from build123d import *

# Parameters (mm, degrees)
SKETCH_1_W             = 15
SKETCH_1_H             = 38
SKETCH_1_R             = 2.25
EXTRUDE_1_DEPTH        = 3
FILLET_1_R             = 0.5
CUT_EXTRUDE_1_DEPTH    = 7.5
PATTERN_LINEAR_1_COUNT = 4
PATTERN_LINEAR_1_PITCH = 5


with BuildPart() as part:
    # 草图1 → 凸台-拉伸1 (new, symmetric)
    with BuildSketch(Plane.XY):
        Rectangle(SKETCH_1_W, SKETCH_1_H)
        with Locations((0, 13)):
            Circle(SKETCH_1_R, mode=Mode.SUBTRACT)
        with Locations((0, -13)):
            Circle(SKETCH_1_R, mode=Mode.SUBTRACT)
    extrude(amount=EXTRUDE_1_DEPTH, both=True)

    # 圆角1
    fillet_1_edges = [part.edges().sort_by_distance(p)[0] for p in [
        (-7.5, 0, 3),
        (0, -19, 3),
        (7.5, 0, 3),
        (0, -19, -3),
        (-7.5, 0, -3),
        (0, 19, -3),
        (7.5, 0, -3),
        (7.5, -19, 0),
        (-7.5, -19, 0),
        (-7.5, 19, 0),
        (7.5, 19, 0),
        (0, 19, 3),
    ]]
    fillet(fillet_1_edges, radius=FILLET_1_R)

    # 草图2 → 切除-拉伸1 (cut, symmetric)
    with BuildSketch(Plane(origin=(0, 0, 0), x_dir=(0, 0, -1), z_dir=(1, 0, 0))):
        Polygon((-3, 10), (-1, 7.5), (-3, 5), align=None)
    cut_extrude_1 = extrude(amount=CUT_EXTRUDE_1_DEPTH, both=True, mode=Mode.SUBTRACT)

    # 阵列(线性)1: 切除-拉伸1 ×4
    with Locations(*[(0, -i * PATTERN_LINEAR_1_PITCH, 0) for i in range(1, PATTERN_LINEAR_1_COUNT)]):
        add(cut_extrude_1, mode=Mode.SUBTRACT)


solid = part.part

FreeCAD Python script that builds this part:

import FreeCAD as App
import Part
import Sketcher


def edges_at(feature, points):
    """Names of the edges that pass closest to the given points."""
    edges = feature.Shape.Edges
    near = lambda p: min(range(len(edges)), key=lambda i: edges[i].distToShape(Part.Vertex(*p))[0])
    return sorted({f"Edge{near(p) + 1}" for p in points})

doc = App.newDocument("Part")
body = doc.addObject("PartDesign::Body", "Body")

# Sketch on XY plane
sketch1 = body.newObject("Sketcher::SketchObject", "Sketch")
sketch1.AttachmentSupport = (doc.getObject("XY_Plane"), [""])
sketch1.MapMode = "FlatFace"
sketch1.addGeometry(Part.LineSegment(App.Vector(-7.5, 19, 0), App.Vector(-7.5, -19, 0)), False)
sketch1.addGeometry(Part.LineSegment(App.Vector(-7.5, -19, 0), App.Vector(7.5, -19, 0)), False)
sketch1.addGeometry(Part.LineSegment(App.Vector(7.5, -19, 0), App.Vector(7.5, 19, 0)), False)
sketch1.addGeometry(Part.LineSegment(App.Vector(7.5, 19, 0), App.Vector(-7.5, 19, 0)), False)
sketch1.addGeometry(Part.Circle(App.Vector(0, -13, 0), App.Vector(0, 0, 1), 2.2), False)
sketch1.addGeometry(Part.Circle(App.Vector(0, 13, 0), App.Vector(0, 0, 1), 2.2), False)
sketch1.addConstraint(Sketcher.Constraint("Coincident", 0, 2, 1, 1))
sketch1.addConstraint(Sketcher.Constraint("Coincident", 1, 2, 2, 1))
sketch1.addConstraint(Sketcher.Constraint("Coincident", 2, 2, 3, 1))
sketch1.addConstraint(Sketcher.Constraint("Coincident", 3, 2, 0, 1))
sketch1.addConstraint(Sketcher.Constraint("Vertical", 0))
sketch1.addConstraint(Sketcher.Constraint("Horizontal", 1))
sketch1.addConstraint(Sketcher.Constraint("Vertical", 2))
sketch1.addConstraint(Sketcher.Constraint("Horizontal", 3))
sketch1.addConstraint(Sketcher.Constraint("Equal", 4, 5))
sketch1.addConstraint(Sketcher.Constraint("Symmetric", 4, 3, 5, 3, -1, 1))
sketch1.addConstraint(Sketcher.Constraint("Symmetric", 0, 2, 2, 2, -1, 1))
sketch1.addConstraint(Sketcher.Constraint("PointOnObject", 4, 3, -2))
sketch1.addConstraint(Sketcher.Constraint("Diameter", 4, 4.5))
sketch1.addConstraint(Sketcher.Constraint("DistanceX", 1, 1, 1, 2, 15.0))
sketch1.addConstraint(Sketcher.Constraint("DistanceY", 0, 2, 0, 1, 38.0))
sketch1.addConstraint(Sketcher.Constraint("DistanceY", 4, 3, -1, 1, 13.0))
pad1 = body.newObject("PartDesign::Pad", "Pad")
pad1.Profile = sketch1
pad1.Length = 6
pad1.Midplane = True
doc.recompute()

fillet = body.newObject("PartDesign::Fillet", "Fillet")
fillet.Base = (pad1, edges_at(pad1, [
    (-7.5, 0, 3),
    (0, -19, 3),
    (7.5, 0, 3),
    (0, -19, -3),
    (-7.5, 0, -3),
    (0, 19, -3),
    (7.5, 0, -3),
    (7.5, -19, 0),
    (-7.5, -19, 0),
    (-7.5, 19, 0),
    (7.5, 19, 0),
    (0, 19, 3),
]))
fillet.Radius = 0.5

# Sketch on YZ plane
sketch2 = body.newObject("Sketcher::SketchObject", "Sketch001")
sketch2.AttachmentSupport = (doc.getObject("YZ_Plane"), [""])
sketch2.MapMode = "FlatFace"
sketch2.addGeometry(Part.LineSegment(App.Vector(7.5, 1, 0), App.Vector(10, 3, 0)), False)
sketch2.addGeometry(Part.LineSegment(App.Vector(10, 3, 0), App.Vector(5, 3, 0)), False)
sketch2.addGeometry(Part.LineSegment(App.Vector(5, 3, 0), App.Vector(7.5, 1, 0)), False)
sketch2.addConstraint(Sketcher.Constraint("Coincident", 0, 2, 1, 1))
sketch2.addConstraint(Sketcher.Constraint("Coincident", 1, 2, 2, 1))
sketch2.addConstraint(Sketcher.Constraint("Coincident", 2, 2, 0, 1))
sketch2.addConstraint(Sketcher.Constraint("Horizontal", 1))
sketch2.addConstraint(Sketcher.Constraint("Equal", 0, 2))
sketch2.addConstraint(Sketcher.Constraint("DistanceX", 1, 2, 1, 1, 5.0))
sketch2.addConstraint(Sketcher.Constraint("DistanceX", -1, 1, 0, 2, 10.0))
sketch2.addConstraint(Sketcher.Constraint("DistanceY", -1, 1, 0, 2, 3.0))
sketch2.addConstraint(Sketcher.Constraint("DistanceY", -1, 1, 2, 2, 1.0))
pocket1 = body.newObject("PartDesign::Pocket", "Pocket")
pocket1.Profile = sketch2
pocket1.Length = 15
pocket1.Midplane = True
doc.recompute()

linearpattern = body.newObject("PartDesign::LinearPattern", "LinearPattern")
linearpattern.Originals = [pocket1]
linearpattern.Direction = (doc.getObject("Y_Axis"), [""])
linearpattern.Mode = "offset"
linearpattern.Offset = 5
linearpattern.Occurrences = 4
linearpattern.Reversed = True
body.Tip = linearpattern

doc.recompute()
